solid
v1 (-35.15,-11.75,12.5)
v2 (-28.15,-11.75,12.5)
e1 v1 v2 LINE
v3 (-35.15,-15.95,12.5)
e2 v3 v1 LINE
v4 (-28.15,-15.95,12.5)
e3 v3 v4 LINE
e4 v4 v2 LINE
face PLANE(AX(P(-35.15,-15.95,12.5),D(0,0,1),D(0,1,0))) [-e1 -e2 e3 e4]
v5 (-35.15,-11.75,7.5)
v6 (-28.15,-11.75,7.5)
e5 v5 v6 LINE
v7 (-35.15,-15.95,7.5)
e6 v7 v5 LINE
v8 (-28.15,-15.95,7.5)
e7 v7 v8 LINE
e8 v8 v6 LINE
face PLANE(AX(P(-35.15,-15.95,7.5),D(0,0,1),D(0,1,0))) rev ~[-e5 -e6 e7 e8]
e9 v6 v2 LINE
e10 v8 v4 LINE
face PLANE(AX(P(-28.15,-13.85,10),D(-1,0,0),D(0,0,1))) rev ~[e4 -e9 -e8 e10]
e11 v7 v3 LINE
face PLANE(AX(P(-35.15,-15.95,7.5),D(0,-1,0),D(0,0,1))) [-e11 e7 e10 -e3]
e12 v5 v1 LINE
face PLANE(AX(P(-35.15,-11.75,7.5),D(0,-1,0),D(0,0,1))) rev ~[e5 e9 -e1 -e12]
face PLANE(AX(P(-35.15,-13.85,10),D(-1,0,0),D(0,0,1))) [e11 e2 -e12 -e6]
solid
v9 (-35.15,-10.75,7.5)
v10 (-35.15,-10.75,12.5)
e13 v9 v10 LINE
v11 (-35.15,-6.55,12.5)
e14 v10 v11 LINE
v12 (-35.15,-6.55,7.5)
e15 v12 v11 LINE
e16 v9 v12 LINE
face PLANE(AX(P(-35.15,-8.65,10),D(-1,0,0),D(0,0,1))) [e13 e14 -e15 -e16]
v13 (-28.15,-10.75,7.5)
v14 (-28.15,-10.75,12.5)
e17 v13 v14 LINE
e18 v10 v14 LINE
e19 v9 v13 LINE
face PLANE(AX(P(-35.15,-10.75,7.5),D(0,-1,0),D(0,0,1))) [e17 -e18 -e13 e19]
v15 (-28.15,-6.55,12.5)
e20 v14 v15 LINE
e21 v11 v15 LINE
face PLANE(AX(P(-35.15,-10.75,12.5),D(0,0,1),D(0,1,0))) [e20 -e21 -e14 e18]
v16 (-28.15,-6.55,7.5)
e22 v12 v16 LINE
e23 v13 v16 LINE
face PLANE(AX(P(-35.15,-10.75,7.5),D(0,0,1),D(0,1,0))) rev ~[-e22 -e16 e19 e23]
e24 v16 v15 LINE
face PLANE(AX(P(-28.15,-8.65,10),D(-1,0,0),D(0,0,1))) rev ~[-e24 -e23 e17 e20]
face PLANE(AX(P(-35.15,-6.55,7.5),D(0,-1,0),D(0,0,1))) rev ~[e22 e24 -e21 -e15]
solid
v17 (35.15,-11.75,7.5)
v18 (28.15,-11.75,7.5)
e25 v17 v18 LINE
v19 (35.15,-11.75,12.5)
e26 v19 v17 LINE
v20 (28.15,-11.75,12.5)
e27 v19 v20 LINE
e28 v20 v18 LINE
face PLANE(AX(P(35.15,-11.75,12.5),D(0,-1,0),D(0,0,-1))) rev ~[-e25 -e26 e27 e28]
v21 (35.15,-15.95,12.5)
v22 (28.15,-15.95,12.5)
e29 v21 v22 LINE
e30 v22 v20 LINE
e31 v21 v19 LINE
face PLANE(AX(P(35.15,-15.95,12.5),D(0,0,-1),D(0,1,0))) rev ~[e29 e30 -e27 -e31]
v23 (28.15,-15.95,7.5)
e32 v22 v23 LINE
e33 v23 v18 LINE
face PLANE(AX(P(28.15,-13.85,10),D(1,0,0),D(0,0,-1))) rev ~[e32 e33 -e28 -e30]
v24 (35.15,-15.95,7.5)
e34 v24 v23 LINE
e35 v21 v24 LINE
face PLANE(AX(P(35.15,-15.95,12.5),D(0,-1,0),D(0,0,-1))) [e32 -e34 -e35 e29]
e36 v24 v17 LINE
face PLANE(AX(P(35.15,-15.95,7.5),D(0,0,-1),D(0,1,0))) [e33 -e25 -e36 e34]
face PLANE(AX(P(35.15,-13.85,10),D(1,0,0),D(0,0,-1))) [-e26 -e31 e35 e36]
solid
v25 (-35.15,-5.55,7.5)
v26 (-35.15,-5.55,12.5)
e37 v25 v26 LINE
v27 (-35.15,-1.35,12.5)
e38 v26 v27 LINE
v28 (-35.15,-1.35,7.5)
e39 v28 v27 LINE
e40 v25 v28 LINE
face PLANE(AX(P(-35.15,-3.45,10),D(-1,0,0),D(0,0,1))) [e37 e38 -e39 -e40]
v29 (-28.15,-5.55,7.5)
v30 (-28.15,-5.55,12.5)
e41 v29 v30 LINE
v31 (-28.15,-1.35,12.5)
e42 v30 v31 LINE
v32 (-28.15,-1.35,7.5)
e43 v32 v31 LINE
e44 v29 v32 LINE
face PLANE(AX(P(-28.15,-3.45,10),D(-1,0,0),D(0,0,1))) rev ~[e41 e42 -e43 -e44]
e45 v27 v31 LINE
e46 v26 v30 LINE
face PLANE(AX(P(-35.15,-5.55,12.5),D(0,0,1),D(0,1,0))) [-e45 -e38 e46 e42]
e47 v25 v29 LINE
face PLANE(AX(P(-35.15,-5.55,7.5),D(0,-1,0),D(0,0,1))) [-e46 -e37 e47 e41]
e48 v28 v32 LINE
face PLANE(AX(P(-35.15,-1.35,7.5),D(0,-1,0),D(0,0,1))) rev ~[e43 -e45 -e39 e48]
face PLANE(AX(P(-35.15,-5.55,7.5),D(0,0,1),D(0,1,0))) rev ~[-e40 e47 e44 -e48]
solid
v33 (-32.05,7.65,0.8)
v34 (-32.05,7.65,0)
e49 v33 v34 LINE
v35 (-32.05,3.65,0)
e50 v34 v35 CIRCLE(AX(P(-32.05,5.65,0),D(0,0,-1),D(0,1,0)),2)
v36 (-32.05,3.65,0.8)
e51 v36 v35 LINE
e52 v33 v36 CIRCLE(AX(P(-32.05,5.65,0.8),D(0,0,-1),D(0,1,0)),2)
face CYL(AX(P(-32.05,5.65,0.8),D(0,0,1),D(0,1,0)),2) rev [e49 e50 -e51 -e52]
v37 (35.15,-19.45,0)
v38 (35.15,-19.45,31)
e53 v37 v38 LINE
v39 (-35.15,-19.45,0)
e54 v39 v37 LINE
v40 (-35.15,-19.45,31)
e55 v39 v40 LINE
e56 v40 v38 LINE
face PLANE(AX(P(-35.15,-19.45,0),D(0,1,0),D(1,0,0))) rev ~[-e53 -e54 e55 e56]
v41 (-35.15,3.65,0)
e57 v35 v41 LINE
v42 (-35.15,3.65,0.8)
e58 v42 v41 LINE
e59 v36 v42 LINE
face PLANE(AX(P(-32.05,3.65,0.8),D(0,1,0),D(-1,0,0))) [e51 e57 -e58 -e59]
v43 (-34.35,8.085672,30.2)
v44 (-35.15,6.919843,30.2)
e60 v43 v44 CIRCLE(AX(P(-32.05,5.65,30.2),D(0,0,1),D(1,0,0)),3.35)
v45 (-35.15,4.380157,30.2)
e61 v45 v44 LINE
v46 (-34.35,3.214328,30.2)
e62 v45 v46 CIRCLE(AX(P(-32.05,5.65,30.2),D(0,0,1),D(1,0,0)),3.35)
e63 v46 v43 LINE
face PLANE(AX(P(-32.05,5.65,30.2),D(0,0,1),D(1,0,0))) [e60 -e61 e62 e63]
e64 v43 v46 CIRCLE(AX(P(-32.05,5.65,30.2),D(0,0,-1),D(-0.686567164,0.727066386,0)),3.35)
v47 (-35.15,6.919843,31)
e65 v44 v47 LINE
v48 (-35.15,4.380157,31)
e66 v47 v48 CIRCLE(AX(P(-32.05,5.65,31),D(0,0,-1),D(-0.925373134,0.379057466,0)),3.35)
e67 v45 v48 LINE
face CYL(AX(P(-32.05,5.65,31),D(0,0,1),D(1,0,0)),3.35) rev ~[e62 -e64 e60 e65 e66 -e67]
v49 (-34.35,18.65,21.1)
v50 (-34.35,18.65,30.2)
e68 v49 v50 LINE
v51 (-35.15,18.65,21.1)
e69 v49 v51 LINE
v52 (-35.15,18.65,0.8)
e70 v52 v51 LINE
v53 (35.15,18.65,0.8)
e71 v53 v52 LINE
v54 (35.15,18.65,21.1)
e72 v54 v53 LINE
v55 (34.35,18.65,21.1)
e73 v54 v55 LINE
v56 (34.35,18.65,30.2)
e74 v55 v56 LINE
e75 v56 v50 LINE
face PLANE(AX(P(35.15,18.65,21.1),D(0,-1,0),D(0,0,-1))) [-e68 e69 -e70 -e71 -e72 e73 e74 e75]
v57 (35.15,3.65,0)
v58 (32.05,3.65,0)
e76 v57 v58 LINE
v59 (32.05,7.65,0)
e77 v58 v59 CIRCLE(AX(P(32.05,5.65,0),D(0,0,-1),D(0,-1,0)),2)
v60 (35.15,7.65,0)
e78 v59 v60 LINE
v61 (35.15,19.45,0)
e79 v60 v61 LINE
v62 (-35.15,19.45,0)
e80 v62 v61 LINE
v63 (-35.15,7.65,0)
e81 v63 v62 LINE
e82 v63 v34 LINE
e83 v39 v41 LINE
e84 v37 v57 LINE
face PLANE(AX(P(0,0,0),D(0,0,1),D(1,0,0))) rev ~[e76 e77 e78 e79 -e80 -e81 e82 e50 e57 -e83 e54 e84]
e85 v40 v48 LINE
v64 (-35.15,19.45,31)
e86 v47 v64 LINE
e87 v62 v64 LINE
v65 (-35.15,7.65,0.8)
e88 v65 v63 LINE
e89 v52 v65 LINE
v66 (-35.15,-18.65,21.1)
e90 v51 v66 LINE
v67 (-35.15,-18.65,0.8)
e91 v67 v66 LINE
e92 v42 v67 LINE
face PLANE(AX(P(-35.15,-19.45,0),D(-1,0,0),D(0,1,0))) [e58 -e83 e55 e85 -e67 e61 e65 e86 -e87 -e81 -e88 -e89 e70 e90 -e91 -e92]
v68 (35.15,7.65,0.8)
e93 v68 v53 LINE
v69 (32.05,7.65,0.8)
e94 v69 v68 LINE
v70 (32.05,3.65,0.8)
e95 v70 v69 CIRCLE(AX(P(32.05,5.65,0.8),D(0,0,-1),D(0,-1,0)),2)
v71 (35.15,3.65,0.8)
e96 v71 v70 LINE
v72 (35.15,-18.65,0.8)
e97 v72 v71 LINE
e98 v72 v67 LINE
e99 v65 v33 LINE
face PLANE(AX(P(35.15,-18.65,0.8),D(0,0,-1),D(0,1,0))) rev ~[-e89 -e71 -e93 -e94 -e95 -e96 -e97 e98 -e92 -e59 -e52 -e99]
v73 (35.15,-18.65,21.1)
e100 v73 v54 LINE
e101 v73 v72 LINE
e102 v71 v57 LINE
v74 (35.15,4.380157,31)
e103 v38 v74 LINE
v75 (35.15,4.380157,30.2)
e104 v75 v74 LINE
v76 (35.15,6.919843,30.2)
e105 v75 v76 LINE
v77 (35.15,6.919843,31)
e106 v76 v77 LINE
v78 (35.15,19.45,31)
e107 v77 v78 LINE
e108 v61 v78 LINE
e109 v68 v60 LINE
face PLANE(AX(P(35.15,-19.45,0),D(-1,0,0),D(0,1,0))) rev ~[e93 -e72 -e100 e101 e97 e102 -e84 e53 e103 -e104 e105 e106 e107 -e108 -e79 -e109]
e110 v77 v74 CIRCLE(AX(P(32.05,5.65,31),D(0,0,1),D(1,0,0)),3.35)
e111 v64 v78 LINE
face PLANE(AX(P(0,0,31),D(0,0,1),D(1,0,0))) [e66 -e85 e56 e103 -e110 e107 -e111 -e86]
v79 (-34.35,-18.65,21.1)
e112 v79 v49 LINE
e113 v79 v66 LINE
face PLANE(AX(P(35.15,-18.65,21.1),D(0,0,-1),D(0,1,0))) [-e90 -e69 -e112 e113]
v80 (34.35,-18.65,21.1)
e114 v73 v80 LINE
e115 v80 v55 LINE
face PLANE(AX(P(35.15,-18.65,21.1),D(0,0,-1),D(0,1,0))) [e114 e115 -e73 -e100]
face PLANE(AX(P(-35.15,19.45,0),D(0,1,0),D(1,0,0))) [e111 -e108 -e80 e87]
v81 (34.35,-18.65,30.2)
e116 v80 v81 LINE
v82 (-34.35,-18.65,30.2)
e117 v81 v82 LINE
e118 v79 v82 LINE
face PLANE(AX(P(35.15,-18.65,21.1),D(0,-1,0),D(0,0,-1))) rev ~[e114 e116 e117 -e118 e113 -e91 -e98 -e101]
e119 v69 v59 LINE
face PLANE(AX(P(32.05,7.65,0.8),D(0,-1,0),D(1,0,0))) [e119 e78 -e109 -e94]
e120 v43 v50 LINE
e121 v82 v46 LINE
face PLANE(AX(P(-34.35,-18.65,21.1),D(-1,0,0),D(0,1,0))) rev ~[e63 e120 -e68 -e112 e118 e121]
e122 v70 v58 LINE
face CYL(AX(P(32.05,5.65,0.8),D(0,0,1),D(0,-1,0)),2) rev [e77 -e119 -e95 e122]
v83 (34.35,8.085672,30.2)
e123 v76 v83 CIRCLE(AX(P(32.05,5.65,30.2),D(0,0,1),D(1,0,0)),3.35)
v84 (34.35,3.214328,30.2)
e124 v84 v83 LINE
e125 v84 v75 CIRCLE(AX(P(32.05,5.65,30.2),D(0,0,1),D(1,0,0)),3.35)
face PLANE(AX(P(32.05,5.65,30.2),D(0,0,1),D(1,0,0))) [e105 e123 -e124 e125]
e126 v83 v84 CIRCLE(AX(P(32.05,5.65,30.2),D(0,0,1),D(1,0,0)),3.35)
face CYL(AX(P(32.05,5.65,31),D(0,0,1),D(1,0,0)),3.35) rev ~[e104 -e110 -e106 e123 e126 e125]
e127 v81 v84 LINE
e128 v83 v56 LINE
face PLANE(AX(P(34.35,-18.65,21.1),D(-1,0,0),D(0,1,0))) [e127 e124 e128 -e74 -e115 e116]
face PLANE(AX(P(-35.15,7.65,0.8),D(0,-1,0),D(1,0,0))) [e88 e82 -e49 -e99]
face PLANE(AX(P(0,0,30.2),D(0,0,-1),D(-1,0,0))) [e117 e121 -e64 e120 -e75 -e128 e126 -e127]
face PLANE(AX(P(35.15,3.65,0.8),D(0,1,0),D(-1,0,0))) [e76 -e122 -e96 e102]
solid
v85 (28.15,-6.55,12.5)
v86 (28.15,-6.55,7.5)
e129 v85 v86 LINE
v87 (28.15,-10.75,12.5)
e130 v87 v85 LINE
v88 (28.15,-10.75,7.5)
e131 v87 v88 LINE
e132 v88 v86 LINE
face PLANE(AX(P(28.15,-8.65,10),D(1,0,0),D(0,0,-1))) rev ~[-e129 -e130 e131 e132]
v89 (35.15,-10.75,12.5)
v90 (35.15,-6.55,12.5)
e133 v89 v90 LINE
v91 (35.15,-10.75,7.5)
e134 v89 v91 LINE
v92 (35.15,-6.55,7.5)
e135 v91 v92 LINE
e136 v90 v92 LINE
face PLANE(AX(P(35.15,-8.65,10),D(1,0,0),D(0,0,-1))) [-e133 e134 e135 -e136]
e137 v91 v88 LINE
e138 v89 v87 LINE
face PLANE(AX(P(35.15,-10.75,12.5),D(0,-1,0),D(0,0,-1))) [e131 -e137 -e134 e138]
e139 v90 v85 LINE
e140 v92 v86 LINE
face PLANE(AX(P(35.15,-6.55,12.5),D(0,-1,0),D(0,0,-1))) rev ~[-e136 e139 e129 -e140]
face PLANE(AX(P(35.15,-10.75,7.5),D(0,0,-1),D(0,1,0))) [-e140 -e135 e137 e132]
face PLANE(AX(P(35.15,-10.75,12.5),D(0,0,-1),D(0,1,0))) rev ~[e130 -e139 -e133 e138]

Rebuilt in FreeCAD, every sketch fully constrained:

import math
import FreeCAD as App
import Part
import Sketcher
from FreeCAD import Vector


def add_polygon(sketch, points):
    """Adds a closed chain of lines whose ends are joined by coincident constraints."""
    first, n = sketch.GeometryCount, len(points)
    for a, b in zip(points, points[1:] + points[:1]):
        sketch.addGeometry(Part.LineSegment(App.Vector(*a, 0), App.Vector(*b, 0)), False)
    for i in range(n):
        sketch.addConstraint(Sketcher.Constraint("Coincident", first + i, 2, first + (i + 1) % n, 1))

doc = App.newDocument("Part")
body = doc.addObject("PartDesign::Body", "Body")

# Sketch on XY plane
sketch1 = body.newObject("Sketcher::SketchObject", "Sketch")
sketch1.AttachmentSupport = (doc.getObject("XY_Plane"), [""])
sketch1.MapMode = "FlatFace"
add_polygon(sketch1, [(-35, 19), (-35, -19), (35, -19), (35, 19)])  # lines 0-3
sketch1.addConstraint(Sketcher.Constraint("Vertical", 0))
sketch1.addConstraint(Sketcher.Constraint("Horizontal", 1))
sketch1.addConstraint(Sketcher.Constraint("Vertical", 2))
sketch1.addConstraint(Sketcher.Constraint("Horizontal", 3))
sketch1.addConstraint(Sketcher.Constraint("Symmetric", 0, 2, 2, 2, -1, 1))
sketch1.addConstraint(Sketcher.Constraint("DistanceX", 1, 1, 1, 2, 70.3))
sketch1.addConstraint(Sketcher.Constraint("DistanceY", 0, 2, 0, 1, 38.9))
pad1 = body.newObject("PartDesign::Pad", "Pad")
pad1.Profile = sketch1
pad1.Length = 31

# Sketch on YZ plane
sketch2 = body.newObject("Sketcher::SketchObject", "Sketch001")
sketch2.AttachmentSupport = (doc.getObject("YZ_Plane"), [""])
sketch2.MapMode = "FlatFace"
sketch2.AttachmentOffset = App.Placement(Vector(0, 0, 35.15), App.Rotation())
add_polygon(sketch2, [(19, 21), (-19, 21), (-19, 1), (19, 1)])  # lines 0-3
sketch2.addConstraint(Sketcher.Constraint("Horizontal", 0))
sketch2.addConstraint(Sketcher.Constraint("Vertical", 1))
sketch2.addConstraint(Sketcher.Constraint("Horizontal", 2))
sketch2.addConstraint(Sketcher.Constraint("Vertical", 3))
sketch2.addConstraint(Sketcher.Constraint("DistanceX", 0, 2, 0, 1, 37.3))
sketch2.addConstraint(Sketcher.Constraint("DistanceY", 1, 2, 1, 1, 20.3))
sketch2.addConstraint(Sketcher.Constraint("DistanceY", -1, 1, 0, 2, 21.1))
sketch2.addConstraint(Sketcher.Constraint("DistanceX", 0, 2, -1, 1, 18.65))
pocket1 = body.newObject("PartDesign::Pocket", "Pocket")
pocket1.Profile = sketch2
pocket1.Type = "ThroughAll"

# Sketch on XY plane
sketch3 = body.newObject("Sketcher::SketchObject", "Sketch002")
sketch3.AttachmentSupport = (doc.getObject("XY_Plane"), [""])
sketch3.MapMode = "FlatFace"
sketch3.AttachmentOffset = App.Placement(Vector(0, 0, 21.1), App.Rotation())
add_polygon(sketch3, [(34, 19), (34, -19), (-34, -19), (-34, 19)])  # lines 0-3
sketch3.addConstraint(Sketcher.Constraint("Vertical", 0))
sketch3.addConstraint(Sketcher.Constraint("Horizontal", 1))
sketch3.addConstraint(Sketcher.Constraint("Vertical", 2))
sketch3.addConstraint(Sketcher.Constraint("Horizontal", 3))
sketch3.addConstraint(Sketcher.Constraint("Symmetric", 0, 2, 2, 2, -1, 1))
sketch3.addConstraint(Sketcher.Constraint("DistanceX", 1, 2, 1, 1, 68.7))
sketch3.addConstraint(Sketcher.Constraint("DistanceY", 0, 2, 0, 1, 37.3))
pocket2 = body.newObject("PartDesign::Pocket", "Pocket001")
pocket2.Profile = sketch3
pocket2.Length = 9.1
pocket2.Reversed = True

# Sketch on XY plane
sketch4 = body.newObject("Sketcher::SketchObject", "Sketch003")
sketch4.AttachmentSupport = (doc.getObject("XY_Plane"), [""])
sketch4.MapMode = "FlatFace"
sketch4.AttachmentOffset = App.Placement(Vector(0, 0, 0.8), App.Rotation())
sketch4.addGeometry(Part.LineSegment(Vector(35.1, 7.7, 0), Vector(32, 7.7, 0)), False)
sketch4.addGeometry(Part.ArcOfCircle(Part.Circle(Vector(32, 5.7, 0), Vector(0, 0, 1), 2), math.radians(90), math.radians(270)), False)
sketch4.addGeometry(Part.LineSegment(Vector(32, 3.6, 0), Vector(35.1, 3.6, 0)), False)
sketch4.addGeometry(Part.LineSegment(Vector(35.1, 3.6, 0), Vector(35.1, 7.7, 0)), False)
sketch4.addGeometry(Part.LineSegment(Vector(-32, 7.7, 0), Vector(-35.1, 7.7, 0)), False)
sketch4.addGeometry(Part.LineSegment(Vector(-35.1, 7.7, 0), Vector(-35.1, 3.6, 0)), False)
sketch4.addGeometry(Part.LineSegment(Vector(-35.1, 3.6, 0), Vector(-32, 3.6, 0)), False)
sketch4.addGeometry(Part.ArcOfCircle(Part.Circle(Vector(-32, 5.7, 0), Vector(0, 0, 1), 2), math.radians(-90), math.radians(90)), False)
sketch4.addConstraint(Sketcher.Constraint("Tangent", 0, 2, 1, 1))
sketch4.addConstraint(Sketcher.Constraint("Tangent", 1, 2, 2, 1))
sketch4.addConstraint(Sketcher.Constraint("Coincident", 2, 2, 3, 1))
sketch4.addConstraint(Sketcher.Constraint("Coincident", 3, 2, 0, 1))
sketch4.addConstraint(Sketcher.Constraint("Coincident", 4, 2, 5, 1))
sketch4.addConstraint(Sketcher.Constraint("Coincident", 5, 2, 6, 1))
sketch4.addConstraint(Sketcher.Constraint("Tangent", 6, 2, 7, 1))
sketch4.addConstraint(Sketcher.Constraint("Tangent", 7, 2, 4, 1))
sketch4.addConstraint(Sketcher.Constraint("Horizontal", 0))
sketch4.addConstraint(Sketcher.Constraint("Horizontal", 2))
sketch4.addConstraint(Sketcher.Constraint("Vertical", 3))
sketch4.addConstraint(Sketcher.Constraint("Horizontal", 4))
sketch4.addConstraint(Sketcher.Constraint("Vertical", 5))
sketch4.addConstraint(Sketcher.Constraint("Horizontal", 6))
sketch4.addConstraint(Sketcher.Constraint("Equal", 1, 7))
sketch4.addConstraint(Sketcher.Constraint("Symmetric", 1, 3, 7, 3, -2))
sketch4.addConstraint(Sketcher.Constraint("Equal", 2, 4))
sketch4.addConstraint(Sketcher.Constraint("Radius", 1, 2.0))
sketch4.addConstraint(Sketcher.Constraint("DistanceX", 0, 2, 0, 1, 3.1))
sketch4.addConstraint(Sketcher.Constraint("DistanceX", 7, 3, 1, 3, 64.1))
sketch4.addConstraint(Sketcher.Constraint("DistanceY", -1, 1, 1, 3, 5.65))
pocket3 = body.newObject("PartDesign::Pocket", "Pocket002")
pocket3.Profile = sketch4
pocket3.Length = 0.8

# Sketch on XY plane
sketch5 = body.newObject("Sketcher::SketchObject", "Sketch004")
sketch5.AttachmentSupport = (doc.getObject("XY_Plane"), [""])
sketch5.MapMode = "FlatFace"
sketch5.AttachmentOffset = App.Placement(Vector(0, 0, 31), App.Rotation())
sketch5.addGeometry(Part.Circle(Vector(32, 5.7, 0), Vector(0, 0, 1), 3.4), False)
sketch5.addGeometry(Part.Circle(Vector(-32, 5.7, 0), Vector(0, 0, 1), 3.4), False)
sketch5.addConstraint(Sketcher.Constraint("Equal", 0, 1))
sketch5.addConstraint(Sketcher.Constraint("Symmetric", 0, 3, 1, 3, -2))
sketch5.addConstraint(Sketcher.Constraint("Diameter", 0, 6.7))
sketch5.addConstraint(Sketcher.Constraint("DistanceX", 1, 3, 0, 3, 64.1))
sketch5.addConstraint(Sketcher.Constraint("DistanceY", -1, 1, 0, 3, 5.65))
pocket4 = body.newObject("PartDesign::Pocket", "Pocket003")
pocket4.Profile = sketch5
pocket4.Length = 0.8
body2 = doc.addObject("PartDesign::Body", "Body001")

# Sketch on YZ plane
sketch6 = body2.newObject("Sketcher::SketchObject", "Sketch005")
sketch6.AttachmentSupport = (doc.getObject("YZ_Plane001"), [""])
sketch6.MapMode = "FlatFace"
sketch6.AttachmentOffset = App.Placement(Vector(0, 0, -35.15), App.Rotation())
add_polygon(sketch6, [(-1.4, 7.5), (-5.5, 7.5), (-5.5, 12.5), (-1.4, 12.5)])  # lines 0-3
sketch6.addConstraint(Sketcher.Constraint("Horizontal", 0))
sketch6.addConstraint(Sketcher.Constraint("Vertical", 1))
sketch6.addConstraint(Sketcher.Constraint("Horizontal", 2))
sketch6.addConstraint(Sketcher.Constraint("Vertical", 3))
sketch6.addConstraint(Sketcher.Constraint("DistanceY", 1, 1, 1, 2, 5.0))
sketch6.addConstraint(Sketcher.Constraint("DistanceX", 0, 2, 0, 1, 4.2))
sketch6.addConstraint(Sketcher.Constraint("DistanceY", -1, 1, 0, 2, 7.5))
sketch6.addConstraint(Sketcher.Constraint("DistanceX", 0, 2, -1, 1, 5.55))
pad2 = body2.newObject("PartDesign::Pad", "Pad001")
pad2.Profile = sketch6
pad2.Length = 7
body3 = doc.addObject("PartDesign::Body", "Body002")

# Sketch on YZ plane
sketch7 = body3.newObject("Sketcher::SketchObject", "Sketch006")
sketch7.AttachmentSupport = (doc.getObject("YZ_Plane002"), [""])
sketch7.MapMode = "FlatFace"
sketch7.AttachmentOffset = App.Placement(Vector(0, 0, -35.15), App.Rotation())
add_polygon(sketch7, [(-6.5, 7.5), (-10.8, 7.5), (-10.8, 12.5), (-6.5, 12.5)])  # lines 0-3
sketch7.addConstraint(Sketcher.Constraint("Horizontal", 0))
sketch7.addConstraint(Sketcher.Constraint("Vertical", 1))
sketch7.addConstraint(Sketcher.Constraint("Horizontal", 2))
sketch7.addConstraint(Sketcher.Constraint("Vertical", 3))
sketch7.addConstraint(Sketcher.Constraint("DistanceY", 1, 1, 1, 2, 5.0))
sketch7.addConstraint(Sketcher.Constraint("DistanceX", 0, 2, 0, 1, 4.2))
sketch7.addConstraint(Sketcher.Constraint("DistanceY", -1, 1, 0, 2, 7.5))
sketch7.addConstraint(Sketcher.Constraint("DistanceX", 0, 2, -1, 1, 10.75))
pad3 = body3.newObject("PartDesign::Pad", "Pad002")
pad3.Profile = sketch7
pad3.Length = 7
body4 = doc.addObject("PartDesign::Body", "Body003")

# Sketch on YZ plane
sketch8 = body4.newObject("Sketcher::SketchObject", "Sketch007")
sketch8.AttachmentSupport = (doc.getObject("YZ_Plane003"), [""])
sketch8.MapMode = "FlatFace"
sketch8.AttachmentOffset = App.Placement(Vector(0, 0, -35.15), App.Rotation())
add_polygon(sketch8, [(-11.8, 7.5), (-15.9, 7.5), (-15.9, 12.5), (-11.8, 12.5)])  # lines 0-3
sketch8.addConstraint(Sketcher.Constraint("Horizontal", 0))
sketch8.addConstraint(Sketcher.Constraint("Vertical", 1))
sketch8.addConstraint(Sketcher.Constraint("Horizontal", 2))
sketch8.addConstraint(Sketcher.Constraint("Vertical", 3))
sketch8.addConstraint(Sketcher.Constraint("DistanceY", 1, 1, 1, 2, 5.0))
sketch8.addConstraint(Sketcher.Constraint("DistanceX", 0, 2, 0, 1, 4.2))
sketch8.addConstraint(Sketcher.Constraint("DistanceY", -1, 1, 0, 2, 7.5))
sketch8.addConstraint(Sketcher.Constraint("DistanceX", 0, 2, -1, 1, 15.95))
pad4 = body4.newObject("PartDesign::Pad", "Pad003")
pad4.Profile = sketch8
pad4.Length = 7
body5 = doc.addObject("PartDesign::Body", "Body004")

# Sketch on YZ plane
sketch9 = body5.newObject("Sketcher::SketchObject", "Sketch008")
sketch9.AttachmentSupport = (doc.getObject("YZ_Plane004"), [""])
sketch9.MapMode = "FlatFace"
sketch9.AttachmentOffset = App.Placement(Vector(0, 0, 35.15), App.Rotation())
add_polygon(sketch9, [(-6.5, 12.5), (-10.8, 12.5), (-10.8, 7.5), (-6.5, 7.5)])  # lines 0-3
sketch9.addConstraint(Sketcher.Constraint("Horizontal", 0))
sketch9.addConstraint(Sketcher.Constraint("Vertical", 1))
sketch9.addConstraint(Sketcher.Constraint("Horizontal", 2))
sketch9.addConstraint(Sketcher.Constraint("Vertical", 3))
sketch9.addConstraint(Sketcher.Constraint("DistanceY", 1, 2, 1, 1, 5.0))
sketch9.addConstraint(Sketcher.Constraint("DistanceX", 0, 2, 0, 1, 4.2))
sketch9.addConstraint(Sketcher.Constraint("DistanceY", -1, 1, 0, 2, 12.5))
sketch9.addConstraint(Sketcher.Constraint("DistanceX", 0, 2, -1, 1, 10.75))
pad5 = body5.newObject("PartDesign::Pad", "Pad004")
pad5.Profile = sketch9
pad5.Length = 7
pad5.Reversed = True
body6 = doc.addObject("PartDesign::Body", "Body005")

# Sketch on YZ plane
sketch10 = body6.newObject("Sketcher::SketchObject", "Sketch009")
sketch10.AttachmentSupport = (doc.getObject("YZ_Plane005"), [""])
sketch10.MapMode = "FlatFace"
sketch10.AttachmentOffset = App.Placement(Vector(0, 0, 35.15), App.Rotation())
add_polygon(sketch10, [(-11.8, 12.5), (-15.9, 12.5), (-15.9, 7.5), (-11.8, 7.5)])  # lines 0-3
sketch10.addConstraint(Sketcher.Constraint("Horizontal", 0))
sketch10.addConstraint(Sketcher.Constraint("Vertical", 1))
sketch10.addConstraint(Sketcher.Constraint("Horizontal", 2))
sketch10.addConstraint(Sketcher.Constraint("Vertical", 3))
sketch10.addConstraint(Sketcher.Constraint("DistanceY", 1, 2, 1, 1, 5.0))
sketch10.addConstraint(Sketcher.Constraint("DistanceX", 0, 2, 0, 1, 4.2))
sketch10.addConstraint(Sketcher.Constraint("DistanceY", -1, 1, 0, 2, 12.5))
sketch10.addConstraint(Sketcher.Constraint("DistanceX", 0, 2, -1, 1, 15.95))
pad6 = body6.newObject("PartDesign::Pad", "Pad005")
pad6.Profile = sketch10
pad6.Length = 7
pad6.Reversed = True

doc.recompute()
